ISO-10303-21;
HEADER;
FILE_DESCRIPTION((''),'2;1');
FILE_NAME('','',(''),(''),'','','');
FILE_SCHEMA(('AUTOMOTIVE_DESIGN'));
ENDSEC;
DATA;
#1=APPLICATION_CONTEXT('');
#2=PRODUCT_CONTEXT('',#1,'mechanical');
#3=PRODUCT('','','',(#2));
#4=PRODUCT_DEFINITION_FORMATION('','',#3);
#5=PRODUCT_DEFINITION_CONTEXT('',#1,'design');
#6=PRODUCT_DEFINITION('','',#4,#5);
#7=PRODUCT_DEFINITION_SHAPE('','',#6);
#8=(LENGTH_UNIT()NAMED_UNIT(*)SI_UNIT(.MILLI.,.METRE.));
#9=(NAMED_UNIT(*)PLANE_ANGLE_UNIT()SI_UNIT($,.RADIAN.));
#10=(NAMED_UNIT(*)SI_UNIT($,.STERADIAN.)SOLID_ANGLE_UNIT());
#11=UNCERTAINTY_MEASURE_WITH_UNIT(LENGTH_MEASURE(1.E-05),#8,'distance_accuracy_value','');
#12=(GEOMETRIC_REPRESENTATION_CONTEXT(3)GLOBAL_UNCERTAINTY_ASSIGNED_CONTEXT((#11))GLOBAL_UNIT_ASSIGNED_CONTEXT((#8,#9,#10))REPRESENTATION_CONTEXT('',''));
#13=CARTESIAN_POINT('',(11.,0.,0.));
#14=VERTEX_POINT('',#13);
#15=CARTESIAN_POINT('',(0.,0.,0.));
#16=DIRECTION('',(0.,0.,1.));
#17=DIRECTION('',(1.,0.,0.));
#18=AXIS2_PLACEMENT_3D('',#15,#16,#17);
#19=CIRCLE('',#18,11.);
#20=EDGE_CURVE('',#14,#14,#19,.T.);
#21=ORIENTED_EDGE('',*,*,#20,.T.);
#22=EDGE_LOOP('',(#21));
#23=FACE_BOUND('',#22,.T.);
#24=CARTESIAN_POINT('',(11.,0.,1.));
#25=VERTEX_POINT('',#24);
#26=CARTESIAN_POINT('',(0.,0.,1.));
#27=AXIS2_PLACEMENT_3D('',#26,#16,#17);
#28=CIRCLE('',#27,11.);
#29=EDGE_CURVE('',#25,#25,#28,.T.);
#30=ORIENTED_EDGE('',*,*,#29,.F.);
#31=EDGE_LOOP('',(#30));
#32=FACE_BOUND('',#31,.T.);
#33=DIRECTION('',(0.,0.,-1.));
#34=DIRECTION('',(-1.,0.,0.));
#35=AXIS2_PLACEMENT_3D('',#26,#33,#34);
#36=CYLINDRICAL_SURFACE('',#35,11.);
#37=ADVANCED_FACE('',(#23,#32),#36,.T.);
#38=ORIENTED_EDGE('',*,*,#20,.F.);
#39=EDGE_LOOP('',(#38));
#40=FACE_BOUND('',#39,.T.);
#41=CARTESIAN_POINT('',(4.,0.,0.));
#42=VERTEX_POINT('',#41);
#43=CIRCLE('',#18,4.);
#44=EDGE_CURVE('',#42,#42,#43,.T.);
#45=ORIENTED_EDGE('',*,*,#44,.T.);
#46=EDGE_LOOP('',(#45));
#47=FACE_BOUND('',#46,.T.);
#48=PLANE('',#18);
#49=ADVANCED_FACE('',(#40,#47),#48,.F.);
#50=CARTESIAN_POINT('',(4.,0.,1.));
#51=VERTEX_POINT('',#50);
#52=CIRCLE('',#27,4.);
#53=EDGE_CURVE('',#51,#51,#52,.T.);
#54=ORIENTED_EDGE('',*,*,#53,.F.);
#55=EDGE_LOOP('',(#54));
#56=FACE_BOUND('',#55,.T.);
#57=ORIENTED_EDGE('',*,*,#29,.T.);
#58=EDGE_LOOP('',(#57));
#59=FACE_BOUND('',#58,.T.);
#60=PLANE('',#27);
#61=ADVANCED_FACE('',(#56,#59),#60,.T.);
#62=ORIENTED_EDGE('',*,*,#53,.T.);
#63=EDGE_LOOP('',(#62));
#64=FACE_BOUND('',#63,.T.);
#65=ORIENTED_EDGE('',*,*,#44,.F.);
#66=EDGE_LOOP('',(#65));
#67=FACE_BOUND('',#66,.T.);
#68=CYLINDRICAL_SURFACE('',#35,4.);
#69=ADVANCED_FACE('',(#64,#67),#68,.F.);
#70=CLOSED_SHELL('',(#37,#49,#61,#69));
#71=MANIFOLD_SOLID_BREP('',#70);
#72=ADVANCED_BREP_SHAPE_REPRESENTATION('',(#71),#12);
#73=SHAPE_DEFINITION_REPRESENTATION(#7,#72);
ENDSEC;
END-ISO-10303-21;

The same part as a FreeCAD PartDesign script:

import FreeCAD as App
import Part
import Sketcher

V = App.Vector

doc = App.newDocument("Part")
params = doc.addObject("Spreadsheet::Sheet", "Params")
for row, (alias, value) in enumerate([
    ("sketch1_diameter", "22 mm"),
    ("sketch1_diameter2", "8 mm"),
    ("pad1_length", "1 mm"),
], start=1):
    params.set(f"A{row}", alias)
    params.set(f"B{row}", "=" + value)
    params.setAlias(f"B{row}", alias)

body = doc.addObject("PartDesign::Body", "Body")

sketch1 = doc.addObject("Sketcher::SketchObject", "Sketch")
body.addObject(sketch1)
sketch1.AttachmentSupport = (doc.XY_Plane, [""])
sketch1.MapMode = "FlatFace"
sketch1.addGeometry(Part.Circle(V(0, 0, 0), V(0, 0, 1), 11), False)
sketch1.addGeometry(Part.Circle(V(0, 0, 0), V(0, 0, 1), 4), False)
sketch1.addConstraint(Sketcher.Constraint("Coincident", 0, 3, -1, 1))
sketch1.addConstraint(Sketcher.Constraint("Coincident", 1, 3, -1, 1))
sketch1.addConstraint(Sketcher.Constraint("Diameter", 0, 22.0))
sketch1.addConstraint(Sketcher.Constraint("Diameter", 1, 8.0))
sketch1.setExpression("Constraints[2]", "Params.sketch1_diameter")
sketch1.setExpression("Constraints[3]", "Params.sketch1_diameter2")
pad1 = doc.addObject("PartDesign::Pad", "Pad")
body.addObject(pad1)
pad1.Profile = sketch1
pad1.setExpression("Length", "Params.pad1_length")

doc.recompute()
